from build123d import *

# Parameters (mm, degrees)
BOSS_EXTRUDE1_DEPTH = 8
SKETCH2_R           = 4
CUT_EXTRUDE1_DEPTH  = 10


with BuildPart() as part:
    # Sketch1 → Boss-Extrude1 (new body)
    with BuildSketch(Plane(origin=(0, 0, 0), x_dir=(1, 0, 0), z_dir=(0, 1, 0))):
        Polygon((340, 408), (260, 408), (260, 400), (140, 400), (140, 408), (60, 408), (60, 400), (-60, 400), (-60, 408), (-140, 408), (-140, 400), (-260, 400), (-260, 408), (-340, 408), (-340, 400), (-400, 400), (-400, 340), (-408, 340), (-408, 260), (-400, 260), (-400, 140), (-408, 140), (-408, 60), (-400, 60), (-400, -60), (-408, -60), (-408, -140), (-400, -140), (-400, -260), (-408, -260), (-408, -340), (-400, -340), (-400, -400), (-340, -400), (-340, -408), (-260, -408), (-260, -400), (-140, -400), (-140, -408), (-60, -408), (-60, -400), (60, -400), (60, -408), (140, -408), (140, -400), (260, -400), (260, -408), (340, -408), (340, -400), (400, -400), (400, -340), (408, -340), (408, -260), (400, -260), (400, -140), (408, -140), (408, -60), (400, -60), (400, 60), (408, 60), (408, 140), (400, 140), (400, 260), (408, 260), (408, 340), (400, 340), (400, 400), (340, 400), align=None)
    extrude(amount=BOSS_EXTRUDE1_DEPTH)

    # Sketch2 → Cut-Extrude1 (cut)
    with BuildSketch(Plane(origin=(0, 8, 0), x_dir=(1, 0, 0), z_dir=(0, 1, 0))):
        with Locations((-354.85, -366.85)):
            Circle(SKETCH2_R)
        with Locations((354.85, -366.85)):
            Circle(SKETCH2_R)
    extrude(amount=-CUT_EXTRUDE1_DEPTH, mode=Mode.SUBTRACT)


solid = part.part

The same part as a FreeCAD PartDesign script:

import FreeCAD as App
import Part
import Sketcher

V = App.Vector
Q = App.Units.Quantity

doc = App.newDocument("Part")
body = doc.addObject("PartDesign::Body", "Body")

# Sketch on XZ plane
sketch1 = doc.addObject("Sketcher::SketchObject", "Sketch")
body.addObject(sketch1)
sketch1.AttachmentSupport = (doc.XZ_Plane, [""])
sketch1.MapMode = "FlatFace"
sketch1.addGeometry(Part.LineSegment(V(340, -408, 0), V(260, -408, 0)), False)
sketch1.addGeometry(Part.LineSegment(V(260, -408, 0), V(260, -400, 0)), False)
sketch1.addGeometry(Part.LineSegment(V(260, -400, 0), V(140, -400, 0)), False)
sketch1.addGeometry(Part.LineSegment(V(140, -400, 0), V(140, -408, 0)), False)
sketch1.addGeometry(Part.LineSegment(V(140, -408, 0), V(60, -408, 0)), False)
sketch1.addGeometry(Part.LineSegment(V(60, -408, 0), V(60, -400, 0)), False)
sketch1.addGeometry(Part.LineSegment(V(60, -400, 0), V(-60, -400, 0)), False)
sketch1.addGeometry(Part.LineSegment(V(-60, -400, 0), V(-60, -408, 0)), False)
sketch1.addGeometry(Part.LineSegment(V(-60, -408, 0), V(-140, -408, 0)), False)
sketch1.addGeometry(Part.LineSegment(V(-140, -408, 0), V(-140, -400, 0)), False)
sketch1.addGeometry(Part.LineSegment(V(-140, -400, 0), V(-260, -400, 0)), False)
sketch1.addGeometry(Part.LineSegment(V(-260, -400, 0), V(-260, -408, 0)), False)
sketch1.addGeometry(Part.LineSegment(V(-260, -408, 0), V(-340, -408, 0)), False)
sketch1.addGeometry(Part.LineSegment(V(-340, -408, 0), V(-340, -400, 0)), False)
sketch1.addGeometry(Part.LineSegment(V(-340, -400, 0), V(-400, -400, 0)), False)
sketch1.addGeometry(Part.LineSegment(V(-400, -400, 0), V(-400, -340, 0)), False)
sketch1.addGeometry(Part.LineSegment(V(-400, -340, 0), V(-408, -340, 0)), False)
sketch1.addGeometry(Part.LineSegment(V(-408, -340, 0), V(-408, -260, 0)), False)
sketch1.addGeometry(Part.LineSegment(V(-408, -260, 0), V(-400, -260, 0)), False)
sketch1.addGeometry(Part.LineSegment(V(-400, -260, 0), V(-400, -140, 0)), False)
sketch1.addGeometry(Part.LineSegment(V(-400, -140, 0), V(-408, -140, 0)), False)
sketch1.addGeometry(Part.LineSegment(V(-408, -140, 0), V(-408, -60, 0)), False)
sketch1.addGeometry(Part.LineSegment(V(-408, -60, 0), V(-400, -60, 0)), False)
sketch1.addGeometry(Part.LineSegment(V(-400, -60, 0), V(-400, 60, 0)), False)
sketch1.addGeometry(Part.LineSegment(V(-400, 60, 0), V(-408, 60, 0)), False)
sketch1.addGeometry(Part.LineSegment(V(-408, 60, 0), V(-408, 140, 0)), False)
sketch1.addGeometry(Part.LineSegment(V(-408, 140, 0), V(-400, 140, 0)), False)
sketch1.addGeometry(Part.LineSegment(V(-400, 140, 0), V(-400, 260, 0)), False)
sketch1.addGeometry(Part.LineSegment(V(-400, 260, 0), V(-408, 260, 0)), False)
sketch1.addGeometry(Part.LineSegment(V(-408, 260, 0), V(-408, 340, 0)), False)
sketch1.addGeometry(Part.LineSegment(V(-408, 340, 0), V(-400, 340, 0)), False)
sketch1.addGeometry(Part.LineSegment(V(-400, 340, 0), V(-400, 400, 0)), False)
sketch1.addGeometry(Part.LineSegment(V(-400, 400, 0), V(-340, 400, 0)), False)
sketch1.addGeometry(Part.LineSegment(V(-340, 400, 0), V(-340, 408, 0)), False)
sketch1.addGeometry(Part.LineSegment(V(-340, 408, 0), V(-260, 408, 0)), False)
sketch1.addGeometry(Part.LineSegment(V(-260, 408, 0), V(-260, 400, 0)), False)
sketch1.addGeometry(Part.LineSegment(V(-260, 400, 0), V(-140, 400, 0)), False)
sketch1.addGeometry(Part.LineSegment(V(-140, 400, 0), V(-140, 408, 0)), False)
sketch1.addGeometry(Part.LineSegment(V(-140, 408, 0), V(-60, 408, 0)), False)
sketch1.addGeometry(Part.LineSegment(V(-60, 408, 0), V(-60, 400, 0)), False)
sketch1.addGeometry(Part.LineSegment(V(-60, 400, 0), V(60, 400, 0)), False)
sketch1.addGeometry(Part.LineSegment(V(60, 400, 0), V(60, 408, 0)), False)
sketch1.addGeometry(Part.LineSegment(V(60, 408, 0), V(140, 408, 0)), False)
sketch1.addGeometry(Part.LineSegment(V(140, 408, 0), V(140, 400, 0)), False)
sketch1.addGeometry(Part.LineSegment(V(140, 400, 0), V(260, 400, 0)), False)
sketch1.addGeometry(Part.LineSegment(V(260, 400, 0), V(260, 408, 0)), False)
sketch1.addGeometry(Part.LineSegment(V(260, 408, 0), V(340, 408, 0)), False)
sketch1.addGeometry(Part.LineSegment(V(340, 408, 0), V(340, 400, 0)), False)
sketch1.addGeometry(Part.LineSegment(V(340, 400, 0), V(400, 400, 0)), False)
sketch1.addGeometry(Part.LineSegment(V(400, 400, 0), V(400, 340, 0)), False)
sketch1.addGeometry(Part.LineSegment(V(400, 340, 0), V(408, 340, 0)), False)
sketch1.addGeometry(Part.LineSegment(V(408, 340, 0), V(408, 260, 0)), False)
sketch1.addGeometry(Part.LineSegment(V(408, 260, 0), V(400, 260, 0)), False)
sketch1.addGeometry(Part.LineSegment(V(400, 260, 0), V(400, 140, 0)), False)
sketch1.addGeometry(Part.LineSegment(V(400, 140, 0), V(408, 140, 0)), False)
sketch1.addGeometry(Part.LineSegment(V(408, 140, 0), V(408, 60, 0)), False)
sketch1.addGeometry(Part.LineSegment(V(408, 60, 0), V(400, 60, 0)), False)
sketch1.addGeometry(Part.LineSegment(V(400, 60, 0), V(400, -60, 0)), False)
sketch1.addGeometry(Part.LineSegment(V(400, -60, 0), V(408, -60, 0)), False)
sketch1.addGeometry(Part.LineSegment(V(408, -60, 0), V(408, -140, 0)), False)
sketch1.addGeometry(Part.LineSegment(V(408, -140, 0), V(400, -140, 0)), False)
sketch1.addGeometry(Part.LineSegment(V(400, -140, 0), V(400, -260, 0)), False)
sketch1.addGeometry(Part.LineSegment(V(400, -260, 0), V(408, -260, 0)), False)
sketch1.addGeometry(Part.LineSegment(V(408, -260, 0), V(408, -340, 0)), False)
sketch1.addGeometry(Part.LineSegment(V(408, -340, 0), V(400, -340, 0)), False)
sketch1.addGeometry(Part.LineSegment(V(400, -340, 0), V(400, -400, 0)), False)
sketch1.addGeometry(Part.LineSegment(V(400, -400, 0), V(340, -400, 0)), False)
sketch1.addGeometry(Part.LineSegment(V(340, -400, 0), V(340, -408, 0)), False)
sketch1.addConstraint(Sketcher.Constraint("Coincident", 0, 2, 1, 1))
sketch1.addConstraint(Sketcher.Constraint("Coincident", 1, 2, 2, 1))
sketch1.addConstraint(Sketcher.Constraint("Coincident", 2, 2, 3, 1))
sketch1.addConstraint(Sketcher.Constraint("Coincident", 3, 2, 4, 1))
sketch1.addConstraint(Sketcher.Constraint("Coincident", 4, 2, 5, 1))
sketch1.addConstraint(Sketcher.Constraint("Coincident", 5, 2, 6, 1))
sketch1.addConstraint(Sketcher.Constraint("Coincident", 6, 2, 7, 1))
sketch1.addConstraint(Sketcher.Constraint("Coincident", 7, 2, 8, 1))
sketch1.addConstraint(Sketcher.Constraint("Coincident", 8, 2, 9, 1))
sketch1.addConstraint(Sketcher.Constraint("Coincident", 9, 2, 10, 1))
sketch1.addConstraint(Sketcher.Constraint("Coincident", 10, 2, 11, 1))
sketch1.addConstraint(Sketcher.Constraint("Coincident", 11, 2, 12, 1))
sketch1.addConstraint(Sketcher.Constraint("Coincident", 12, 2, 13, 1))
sketch1.addConstraint(Sketcher.Constraint("Coincident", 13, 2, 14, 1))
sketch1.addConstraint(Sketcher.Constraint("Coincident", 14, 2, 15, 1))
sketch1.addConstraint(Sketcher.Constraint("Coincident", 15, 2, 16, 1))
sketch1.addConstraint(Sketcher.Constraint("Coincident", 16, 2, 17, 1))
sketch1.addConstraint(Sketcher.Constraint("Coincident", 17, 2, 18, 1))
sketch1.addConstraint(Sketcher.Constraint("Coincident", 18, 2, 19, 1))
sketch1.addConstraint(Sketcher.Constraint("Coincident", 19, 2, 20, 1))
sketch1.addConstraint(Sketcher.Constraint("Coincident", 20, 2, 21, 1))
sketch1.addConstraint(Sketcher.Constraint("Coincident", 21, 2, 22, 1))
sketch1.addConstraint(Sketcher.Constraint("Coincident", 22, 2, 23, 1))
sketch1.addConstraint(Sketcher.Constraint("Coincident", 23, 2, 24, 1))
sketch1.addConstraint(Sketcher.Constraint("Coincident", 24, 2, 25, 1))
sketch1.addConstraint(Sketcher.Constraint("Coincident", 25, 2, 26, 1))
sketch1.addConstraint(Sketcher.Constraint("Coincident", 26, 2, 27, 1))
sketch1.addConstraint(Sketcher.Constraint("Coincident", 27, 2, 28, 1))
sketch1.addConstraint(Sketcher.Constraint("Coincident", 28, 2, 29, 1))
sketch1.addConstraint(Sketcher.Constraint("Coincident", 29, 2, 30, 1))
sketch1.addConstraint(Sketcher.Constraint("Coincident", 30, 2, 31, 1))
sketch1.addConstraint(Sketcher.Constraint("Coincident", 31, 2, 32, 1))
sketch1.addConstraint(Sketcher.Constraint("Coincident", 32, 2, 33, 1))
sketch1.addConstraint(Sketcher.Constraint("Coincident", 33, 2, 34, 1))
sketch1.addConstraint(Sketcher.Constraint("Coincident", 34, 2, 35, 1))
sketch1.addConstraint(Sketcher.Constraint("Coincident", 35, 2, 36, 1))
sketch1.addConstraint(Sketcher.Constraint("Coincident", 36, 2, 37, 1))
sketch1.addConstraint(Sketcher.Constraint("Coincident", 37, 2, 38, 1))
sketch1.addConstraint(Sketcher.Constraint("Coincident", 38, 2, 39, 1))
sketch1.addConstraint(Sketcher.Constraint("Coincident", 39, 2, 40, 1))
sketch1.addConstraint(Sketcher.Constraint("Coincident", 40, 2, 41, 1))
sketch1.addConstraint(Sketcher.Constraint("Coincident", 41, 2, 42, 1))
sketch1.addConstraint(Sketcher.Constraint("Coincident", 42, 2, 43, 1))
sketch1.addConstraint(Sketcher.Constraint("Coincident", 43, 2, 44, 1))
sketch1.addConstraint(Sketcher.Constraint("Coincident", 44, 2, 45, 1))
sketch1.addConstraint(Sketcher.Constraint("Coincident", 45, 2, 46, 1))
sketch1.addConstraint(Sketcher.Constraint("Coincident", 46, 2, 47, 1))
sketch1.addConstraint(Sketcher.Constraint("Coincident", 47, 2, 48, 1))
sketch1.addConstraint(Sketcher.Constraint("Coincident", 48, 2, 49, 1))
sketch1.addConstraint(Sketcher.Constraint("Coincident", 49, 2, 50, 1))
sketch1.addConstraint(Sketcher.Constraint("Coincident", 50, 2, 51, 1))
sketch1.addConstraint(Sketcher.Constraint("Coincident", 51, 2, 52, 1))
sketch1.addConstraint(Sketcher.Constraint("Coincident", 52, 2, 53, 1))
sketch1.addConstraint(Sketcher.Constraint("Coincident", 53, 2, 54, 1))
sketch1.addConstraint(Sketcher.Constraint("Coincident", 54, 2, 55, 1))
sketch1.addConstraint(Sketcher.Constraint("Coincident", 55, 2, 56, 1))
sketch1.addConstraint(Sketcher.Constraint("Coincident", 56, 2, 57, 1))
sketch1.addConstraint(Sketcher.Constraint("Coincident", 57, 2, 58, 1))
sketch1.addConstraint(Sketcher.Constraint("Coincident", 58, 2, 59, 1))
sketch1.addConstraint(Sketcher.Constraint("Coincident", 59, 2, 60, 1))
sketch1.addConstraint(Sketcher.Constraint("Coincident", 60, 2, 61, 1))
sketch1.addConstraint(Sketcher.Constraint("Coincident", 61, 2, 62, 1))
sketch1.addConstraint(Sketcher.Constraint("Coincident", 62, 2, 63, 1))
sketch1.addConstraint(Sketcher.Constraint("Coincident", 63, 2, 64, 1))
sketch1.addConstraint(Sketcher.Constraint("Coincident", 64, 2, 65, 1))
sketch1.addConstraint(Sketcher.Constraint("Coincident", 65, 2, 66, 1))
sketch1.addConstraint(Sketcher.Constraint("Coincident", 66, 2, 67, 1))
sketch1.addConstraint(Sketcher.Constraint("Coincident", 67, 2, 0, 1))
sketch1.addConstraint(Sketcher.Constraint("Horizontal", 0))
sketch1.addConstraint(Sketcher.Constraint("Vertical", 1))
sketch1.addConstraint(Sketcher.Constraint("Horizontal", 2))
sketch1.addConstraint(Sketcher.Constraint("Vertical", 3))
sketch1.addConstraint(Sketcher.Constraint("Horizontal", 4))
sketch1.addConstraint(Sketcher.Constraint("Vertical", 5))
sketch1.addConstraint(Sketcher.Constraint("Horizontal", 6))
sketch1.addConstraint(Sketcher.Constraint("Vertical", 7))
sketch1.addConstraint(Sketcher.Constraint("Horizontal", 8))
sketch1.addConstraint(Sketcher.Constraint("Vertical", 9))
sketch1.addConstraint(Sketcher.Constraint("Horizontal", 10))
sketch1.addConstraint(Sketcher.Constraint("Vertical", 11))
sketch1.addConstraint(Sketcher.Constraint("Horizontal", 12))
sketch1.addConstraint(Sketcher.Constraint("Vertical", 13))
sketch1.addConstraint(Sketcher.Constraint("Horizontal", 14))
sketch1.addConstraint(Sketcher.Constraint("Vertical", 15))
sketch1.addConstraint(Sketcher.Constraint("Horizontal", 16))
sketch1.addConstraint(Sketcher.Constraint("Vertical", 17))
sketch1.addConstraint(Sketcher.Constraint("Horizontal", 18))
sketch1.addConstraint(Sketcher.Constraint("Vertical", 19))
sketch1.addConstraint(Sketcher.Constraint("Horizontal", 20))
sketch1.addConstraint(Sketcher.Constraint("Vertical", 21))
sketch1.addConstraint(Sketcher.Constraint("Horizontal", 22))
sketch1.addConstraint(Sketcher.Constraint("Vertical", 23))
sketch1.addConstraint(Sketcher.Constraint("Horizontal", 24))
sketch1.addConstraint(Sketcher.Constraint("Vertical", 25))
sketch1.addConstraint(Sketcher.Constraint("Horizontal", 26))
sketch1.addConstraint(Sketcher.Constraint("Vertical", 27))
sketch1.addConstraint(Sketcher.Constraint("Horizontal", 28))
sketch1.addConstraint(Sketcher.Constraint("Vertical", 29))
sketch1.addConstraint(Sketcher.Constraint("Horizontal", 30))
sketch1.addConstraint(Sketcher.Constraint("Vertical", 31))
sketch1.addConstraint(Sketcher.Constraint("Horizontal", 32))
sketch1.addConstraint(Sketcher.Constraint("Vertical", 33))
sketch1.addConstraint(Sketcher.Constraint("Horizontal", 34))
sketch1.addConstraint(Sketcher.Constraint("Vertical", 35))
sketch1.addConstraint(Sketcher.Constraint("Horizontal", 36))
sketch1.addConstraint(Sketcher.Constraint("Vertical", 37))
sketch1.addConstraint(Sketcher.Constraint("Horizontal", 38))
sketch1.addConstraint(Sketcher.Constraint("Vertical", 39))
sketch1.addConstraint(Sketcher.Constraint("Horizontal", 40))
sketch1.addConstraint(Sketcher.Constraint("Vertical", 41))
sketch1.addConstraint(Sketcher.Constraint("Horizontal", 42))
sketch1.addConstraint(Sketcher.Constraint("Vertical", 43))
sketch1.addConstraint(Sketcher.Constraint("Horizontal", 44))
sketch1.addConstraint(Sketcher.Constraint("Vertical", 45))
sketch1.addConstraint(Sketcher.Constraint("Horizontal", 46))
sketch1.addConstraint(Sketcher.Constraint("Vertical", 47))
sketch1.addConstraint(Sketcher.Constraint("Horizontal", 48))
sketch1.addConstraint(Sketcher.Constraint("Vertical", 49))
sketch1.addConstraint(Sketcher.Constraint("Horizontal", 50))
sketch1.addConstraint(Sketcher.Constraint("Vertical", 51))
sketch1.addConstraint(Sketcher.Constraint("Horizontal", 52))
sketch1.addConstraint(Sketcher.Constraint("Vertical", 53))
sketch1.addConstraint(Sketcher.Constraint("Horizontal", 54))
sketch1.addConstraint(Sketcher.Constraint("Vertical", 55))
sketch1.addConstraint(Sketcher.Constraint("Horizontal", 56))
sketch1.addConstraint(Sketcher.Constraint("Vertical", 57))
sketch1.addConstraint(Sketcher.Constraint("Horizontal", 58))
sketch1.addConstraint(Sketcher.Constraint("Vertical", 59))
sketch1.addConstraint(Sketcher.Constraint("Horizontal", 60))
sketch1.addConstraint(Sketcher.Constraint("Vertical", 61))
sketch1.addConstraint(Sketcher.Constraint("Horizontal", 62))
sketch1.addConstraint(Sketcher.Constraint("Vertical", 63))
sketch1.addConstraint(Sketcher.Constraint("Horizontal", 64))
sketch1.addConstraint(Sketcher.Constraint("Vertical", 65))
sketch1.addConstraint(Sketcher.Constraint("Horizontal", 66))
sketch1.addConstraint(Sketcher.Constraint("Vertical", 67))
sketch1.addConstraint(Sketcher.Constraint("Symmetric", 0, 2, 34, 2, -1, 1))
sketch1.addConstraint(Sketcher.Constraint("Symmetric", 2, 2, 36, 2, -1, 1))
sketch1.addConstraint(Sketcher.Constraint("Symmetric", 4, 2, 38, 2, -1, 1))
sketch1.addConstraint(Sketcher.Constraint("Symmetric", 6, 2, 40, 2, -1, 1))
sketch1.addConstraint(Sketcher.Constraint("Symmetric", 8, 2, 42, 2, -1, 1))
sketch1.addConstraint(Sketcher.Constraint("Symmetric", 10, 2, 44, 2, -1, 1))
sketch1.addConstraint(Sketcher.Constraint("Symmetric", 12, 2, 46, 2, -1, 1))
sketch1.addConstraint(Sketcher.Constraint("Symmetric", 14, 2, 48, 2, -1, 1))
sketch1.addConstraint(Sketcher.Constraint("Symmetric", 16, 2, 50, 2, -1, 1))
sketch1.addConstraint(Sketcher.Constraint("Symmetric", 18, 2, 52, 2, -1, 1))
sketch1.addConstraint(Sketcher.Constraint("Symmetric", 20, 2, 54, 2, -1, 1))
sketch1.addConstraint(Sketcher.Constraint("Symmetric", 22, 2, 56, 2, -1, 1))
sketch1.addConstraint(Sketcher.Constraint("Symmetric", 24, 2, 58, 2, -1, 1))
sketch1.addConstraint(Sketcher.Constraint("Symmetric", 26, 2, 60, 2, -1, 1))
sketch1.addConstraint(Sketcher.Constraint("Symmetric", 28, 2, 62, 2, -1, 1))
sketch1.addConstraint(Sketcher.Constraint("Symmetric", 30, 2, 64, 2, -1, 1))
sketch1.addConstraint(Sketcher.Constraint("Symmetric", 32, 2, 66, 2, -1, 1))
sketch1.addConstraint(Sketcher.Constraint("Symmetric", 4, 2, 7, 2, -2))
sketch1.addConstraint(Sketcher.Constraint("Symmetric", 2, 2, 9, 2, -2))
sketch1.addConstraint(Sketcher.Constraint("Symmetric", 0, 2, 11, 2, -2))
sketch1.addConstraint(Sketcher.Constraint("Symmetric", 32, 2, 47, 2, -2))
sketch1.addConstraint(Sketcher.Constraint("Symmetric", 30, 2, 49, 2, -2))
sketch1.addConstraint(Sketcher.Constraint("Symmetric", 28, 2, 51, 2, -2))
sketch1.addConstraint(Sketcher.Constraint("Symmetric", 26, 2, 53, 2, -2))
sketch1.addConstraint(Sketcher.Constraint("Symmetric", 24, 2, 55, 2, -2))
sketch1.addConstraint(Sketcher.Constraint("Horizontal", 0, 2, 3, 2))
sketch1.addConstraint(Sketcher.Constraint("Horizontal", 2, 2, 5, 2))
sketch1.addConstraint(Sketcher.Constraint("Horizontal", 10, 2, 13, 2))
sketch1.addConstraint(Sketcher.Constraint("Vertical", 15, 2, 18, 2))
sketch1.addConstraint(Sketcher.Constraint("Vertical", 17, 2, 20, 2))
sketch1.addConstraint(Sketcher.Constraint("Vertical", 19, 2, 22, 2))
sketch1.addConstraint(Sketcher.Constraint("Equal", 0, 4))
sketch1.addConstraint(Sketcher.Constraint("Equal", 2, 6))
sketch1.addConstraint(Sketcher.Constraint("Equal", 64, 1))
sketch1.addConstraint(Sketcher.Constraint("Equal", 66, 15))
sketch1.addConstraint(Sketcher.Constraint("Equal", 46, 17))
sketch1.addConstraint(Sketcher.Constraint("Equal", 44, 19))
sketch1.addConstraint(Sketcher.Constraint("Equal", 17, 21))
sketch1.addConstraint(Sketcher.Constraint("Equal", 19, 23))
sketch1.addConstraint(Sketcher.Constraint("DistanceX", 0, 2, 0, 1, Q("80 mm")))
sketch1.addConstraint(Sketcher.Constraint("DistanceX", 2, 2, 2, 1, Q("120 mm")))
sketch1.addConstraint(Sketcher.Constraint("DistanceX", 14, 2, 14, 1, Q("60 mm")))
sketch1.addConstraint(Sketcher.Constraint("DistanceX", 16, 2, 16, 1, Q("8 mm")))
pad1 = doc.addObject("PartDesign::Pad", "Pad")
body.addObject(pad1)
pad1.Profile = sketch1
pad1.Length = 8
pad1.Reversed = True

# Sketch on XZ plane
sketch2 = doc.addObject("Sketcher::SketchObject", "Sketch001")
body.addObject(sketch2)
sketch2.AttachmentSupport = (doc.XZ_Plane, [""])
sketch2.MapMode = "FlatFace"
sketch2.AttachmentOffset = App.Placement(V(0, 0, -8), App.Rotation())
sketch2.addGeometry(Part.Circle(V(-354.85, 366.85, 0), V(0, 0, 1), 4), False)
sketch2.addGeometry(Part.Circle(V(354.85, 366.85, 0), V(0, 0, 1), 4), False)
sketch2.addConstraint(Sketcher.Constraint("Equal", 0, 1))
sketch2.addConstraint(Sketcher.Constraint("Symmetric", 0, 3, 1, 3, -2))
sketch2.addConstraint(Sketcher.Constraint("Diameter", 0, Q("8 mm")))
sketch2.addConstraint(Sketcher.Constraint("DistanceX", 0, 3, 1, 3, Q("709.7 mm")))
sketch2.addConstraint(Sketcher.Constraint("DistanceY", -1, 1, 0, 3, Q("366.85 mm")))
pocket1 = doc.addObject("PartDesign::Pocket", "Pocket")
body.addObject(pocket1)
pocket1.Profile = sketch2
pocket1.Length = 10
pocket1.Reversed = True

doc.recompute()
